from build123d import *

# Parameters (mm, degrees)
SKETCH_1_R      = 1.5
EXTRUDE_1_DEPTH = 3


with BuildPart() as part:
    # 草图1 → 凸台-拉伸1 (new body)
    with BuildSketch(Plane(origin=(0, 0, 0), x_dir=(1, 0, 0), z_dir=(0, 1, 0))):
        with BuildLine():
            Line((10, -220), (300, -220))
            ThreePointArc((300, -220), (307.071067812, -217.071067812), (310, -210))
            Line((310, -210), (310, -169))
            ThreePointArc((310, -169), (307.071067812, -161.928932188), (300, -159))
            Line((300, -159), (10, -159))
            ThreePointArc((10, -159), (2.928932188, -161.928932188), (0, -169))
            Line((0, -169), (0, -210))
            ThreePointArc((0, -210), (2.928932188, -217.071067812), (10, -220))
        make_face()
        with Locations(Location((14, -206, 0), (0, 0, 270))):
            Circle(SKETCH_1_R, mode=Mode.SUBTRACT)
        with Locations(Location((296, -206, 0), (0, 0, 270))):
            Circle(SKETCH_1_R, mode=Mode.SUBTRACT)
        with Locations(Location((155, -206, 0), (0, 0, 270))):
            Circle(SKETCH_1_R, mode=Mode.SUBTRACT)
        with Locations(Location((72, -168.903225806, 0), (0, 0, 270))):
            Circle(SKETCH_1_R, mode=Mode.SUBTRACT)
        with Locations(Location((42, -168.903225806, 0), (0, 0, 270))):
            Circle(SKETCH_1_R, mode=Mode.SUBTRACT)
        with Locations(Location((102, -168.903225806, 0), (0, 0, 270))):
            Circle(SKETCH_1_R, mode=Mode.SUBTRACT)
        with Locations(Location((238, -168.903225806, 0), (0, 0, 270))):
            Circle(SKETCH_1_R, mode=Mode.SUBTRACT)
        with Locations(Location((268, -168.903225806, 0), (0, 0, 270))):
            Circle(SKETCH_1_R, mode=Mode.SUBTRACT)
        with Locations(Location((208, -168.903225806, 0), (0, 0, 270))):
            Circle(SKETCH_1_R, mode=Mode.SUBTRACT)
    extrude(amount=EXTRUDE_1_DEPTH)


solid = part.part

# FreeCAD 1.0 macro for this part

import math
import FreeCAD as App
import Part
import Sketcher

doc = App.newDocument("Part")
params = doc.addObject("Spreadsheet::Sheet", "Params")
for row, (alias, value) in enumerate([
    ("sketch1_diameter", "3 mm"),
    ("sketch1_radius", "10 mm"),
    ("sketch1_width", "290 mm"),
    ("sketch1_height", "41 mm"),
    ("pad1_length", "3 mm"),
], start=1):
    params.set(f"A{row}", alias)
    params.set(f"B{row}", "=" + value)
    params.setAlias(f"B{row}", alias)

body = doc.addObject("PartDesign::Body", "Body")

# Sketch on XZ plane
sketch1 = body.newObject("Sketcher::SketchObject", "Sketch")
sketch1.AttachmentSupport = (doc.getObject("XZ_Plane"), [""])
sketch1.MapMode = "FlatFace"
sketch1.addGeometry([
    Part.LineSegment(App.Vector(10, 220, 0), App.Vector(300, 220, 0)),  # 0
    Part.ArcOfCircle(Part.Circle(App.Vector(300, 210, 0), App.Vector(0, 0, 1), 10), math.radians(0), math.radians(90)),  # 1
    Part.LineSegment(App.Vector(310, 210, 0), App.Vector(310, 169, 0)),  # 2
    Part.ArcOfCircle(Part.Circle(App.Vector(300, 169, 0), App.Vector(0, 0, 1), 10), math.radians(-90), math.radians(0)),  # 3
    Part.LineSegment(App.Vector(300, 159, 0), App.Vector(10, 159, 0)),  # 4
    Part.ArcOfCircle(Part.Circle(App.Vector(10, 169, 0), App.Vector(0, 0, 1), 10), math.radians(180), math.radians(270)),  # 5
    Part.LineSegment(App.Vector(0, 169, 0), App.Vector(0, 210, 0)),  # 6
    Part.ArcOfCircle(Part.Circle(App.Vector(10, 210, 0), App.Vector(0, 0, 1), 10), math.radians(90), math.radians(180)),  # 7
    Part.Circle(App.Vector(14, 206, 0), App.Vector(0, 0, 1), 1.5),  # 8
    Part.Circle(App.Vector(155, 206, 0), App.Vector(0, 0, 1), 1.5),  # 9
    Part.Circle(App.Vector(296, 206, 0), App.Vector(0, 0, 1), 1.5),  # 10
    Part.Circle(App.Vector(42, 168.9, 0), App.Vector(0, 0, 1), 1.5),  # 11
    Part.Circle(App.Vector(72, 168.9, 0), App.Vector(0, 0, 1), 1.5),  # 12
    Part.Circle(App.Vector(102, 168.9, 0), App.Vector(0, 0, 1), 1.5),  # 13
    Part.Circle(App.Vector(208, 168.9, 0), App.Vector(0, 0, 1), 1.5),  # 14
    Part.Circle(App.Vector(238, 168.9, 0), App.Vector(0, 0, 1), 1.5),  # 15
    Part.Circle(App.Vector(268, 168.9, 0), App.Vector(0, 0, 1), 1.5),  # 16
], False)
sketch1.addConstraint([
    Sketcher.Constraint("Tangent", 0, 2, 1, 2),
    Sketcher.Constraint("Tangent", 1, 1, 2, 1),
    Sketcher.Constraint("Tangent", 2, 2, 3, 2),
    Sketcher.Constraint("Tangent", 3, 1, 4, 1),
    Sketcher.Constraint("Tangent", 4, 2, 5, 2),
    Sketcher.Constraint("Tangent", 5, 1, 6, 1),
    Sketcher.Constraint("Tangent", 6, 2, 7, 2),
    Sketcher.Constraint("Tangent", 7, 1, 0, 1),
    Sketcher.Constraint("Horizontal", 0),
    Sketcher.Constraint("Vertical", 2),
    Sketcher.Constraint("Horizontal", 4),
    Sketcher.Constraint("Vertical", 6),
    Sketcher.Constraint("Equal", 1, 3),
    Sketcher.Constraint("Equal", 3, 5),
    Sketcher.Constraint("Equal", 5, 7),
    Sketcher.Constraint("Equal", 8, 9),
    Sketcher.Constraint("Equal", 9, 10),
    Sketcher.Constraint("Equal", 10, 11),
    Sketcher.Constraint("Equal", 11, 12),
    Sketcher.Constraint("Equal", 12, 13),
    Sketcher.Constraint("Equal", 13, 14),
    Sketcher.Constraint("Equal", 14, 15),
    Sketcher.Constraint("Equal", 15, 16),
    Sketcher.Constraint("PointOnObject", 5, 1, -2),
    Sketcher.Constraint("Horizontal", 8, 3, 9, 3),
    Sketcher.Constraint("Horizontal", 9, 3, 10, 3),
    Sketcher.Constraint("Horizontal", 11, 3, 12, 3),
    Sketcher.Constraint("Horizontal", 12, 3, 13, 3),
    Sketcher.Constraint("Horizontal", 13, 3, 14, 3),
    Sketcher.Constraint("Horizontal", 14, 3, 15, 3),
    Sketcher.Constraint("Horizontal", 15, 3, 16, 3),
    Sketcher.Constraint("Diameter", 8, 3.0),
    Sketcher.Constraint("Radius", 1, 10.0),
    Sketcher.Constraint("DistanceX", 0, 1, 0, 2, 290.0),
    Sketcher.Constraint("DistanceY", 2, 2, 2, 1, 41.0),
    Sketcher.Constraint("DistanceY", -1, 1, 1, 3, 210.0),
    Sketcher.Constraint("DistanceX", -1, 1, 8, 3, 14.0),
    Sketcher.Constraint("DistanceY", -1, 1, 8, 3, 206.0),
    Sketcher.Constraint("DistanceX", -1, 1, 9, 3, 155.0),
    Sketcher.Constraint("DistanceX", -1, 1, 10, 3, 296.0),
    Sketcher.Constraint("DistanceX", -1, 1, 11, 3, 42.0),
    Sketcher.Constraint("DistanceX", -1, 1, 12, 3, 72.0),
    Sketcher.Constraint("DistanceX", -1, 1, 13, 3, 102.0),
    Sketcher.Constraint("DistanceX", -1, 1, 14, 3, 208.0),
    Sketcher.Constraint("DistanceX", -1, 1, 15, 3, 238.0),
    Sketcher.Constraint("DistanceX", -1, 1, 16, 3, 268.0),
    Sketcher.Constraint("DistanceY", -1, 1, 11, 3, 168.903226),
])
sketch1.setExpression("Constraints[31]", "Params.sketch1_diameter")
sketch1.setExpression("Constraints[32]", "Params.sketch1_radius")
sketch1.setExpression("Constraints[33]", "Params.sketch1_width")
sketch1.setExpression("Constraints[34]", "Params.sketch1_height")
pad1 = body.newObject("PartDesign::Pad", "Pad")
pad1.Profile = sketch1
pad1.setExpression("Length", "Params.pad1_length")
pad1.Reversed = True

doc.recompute()
